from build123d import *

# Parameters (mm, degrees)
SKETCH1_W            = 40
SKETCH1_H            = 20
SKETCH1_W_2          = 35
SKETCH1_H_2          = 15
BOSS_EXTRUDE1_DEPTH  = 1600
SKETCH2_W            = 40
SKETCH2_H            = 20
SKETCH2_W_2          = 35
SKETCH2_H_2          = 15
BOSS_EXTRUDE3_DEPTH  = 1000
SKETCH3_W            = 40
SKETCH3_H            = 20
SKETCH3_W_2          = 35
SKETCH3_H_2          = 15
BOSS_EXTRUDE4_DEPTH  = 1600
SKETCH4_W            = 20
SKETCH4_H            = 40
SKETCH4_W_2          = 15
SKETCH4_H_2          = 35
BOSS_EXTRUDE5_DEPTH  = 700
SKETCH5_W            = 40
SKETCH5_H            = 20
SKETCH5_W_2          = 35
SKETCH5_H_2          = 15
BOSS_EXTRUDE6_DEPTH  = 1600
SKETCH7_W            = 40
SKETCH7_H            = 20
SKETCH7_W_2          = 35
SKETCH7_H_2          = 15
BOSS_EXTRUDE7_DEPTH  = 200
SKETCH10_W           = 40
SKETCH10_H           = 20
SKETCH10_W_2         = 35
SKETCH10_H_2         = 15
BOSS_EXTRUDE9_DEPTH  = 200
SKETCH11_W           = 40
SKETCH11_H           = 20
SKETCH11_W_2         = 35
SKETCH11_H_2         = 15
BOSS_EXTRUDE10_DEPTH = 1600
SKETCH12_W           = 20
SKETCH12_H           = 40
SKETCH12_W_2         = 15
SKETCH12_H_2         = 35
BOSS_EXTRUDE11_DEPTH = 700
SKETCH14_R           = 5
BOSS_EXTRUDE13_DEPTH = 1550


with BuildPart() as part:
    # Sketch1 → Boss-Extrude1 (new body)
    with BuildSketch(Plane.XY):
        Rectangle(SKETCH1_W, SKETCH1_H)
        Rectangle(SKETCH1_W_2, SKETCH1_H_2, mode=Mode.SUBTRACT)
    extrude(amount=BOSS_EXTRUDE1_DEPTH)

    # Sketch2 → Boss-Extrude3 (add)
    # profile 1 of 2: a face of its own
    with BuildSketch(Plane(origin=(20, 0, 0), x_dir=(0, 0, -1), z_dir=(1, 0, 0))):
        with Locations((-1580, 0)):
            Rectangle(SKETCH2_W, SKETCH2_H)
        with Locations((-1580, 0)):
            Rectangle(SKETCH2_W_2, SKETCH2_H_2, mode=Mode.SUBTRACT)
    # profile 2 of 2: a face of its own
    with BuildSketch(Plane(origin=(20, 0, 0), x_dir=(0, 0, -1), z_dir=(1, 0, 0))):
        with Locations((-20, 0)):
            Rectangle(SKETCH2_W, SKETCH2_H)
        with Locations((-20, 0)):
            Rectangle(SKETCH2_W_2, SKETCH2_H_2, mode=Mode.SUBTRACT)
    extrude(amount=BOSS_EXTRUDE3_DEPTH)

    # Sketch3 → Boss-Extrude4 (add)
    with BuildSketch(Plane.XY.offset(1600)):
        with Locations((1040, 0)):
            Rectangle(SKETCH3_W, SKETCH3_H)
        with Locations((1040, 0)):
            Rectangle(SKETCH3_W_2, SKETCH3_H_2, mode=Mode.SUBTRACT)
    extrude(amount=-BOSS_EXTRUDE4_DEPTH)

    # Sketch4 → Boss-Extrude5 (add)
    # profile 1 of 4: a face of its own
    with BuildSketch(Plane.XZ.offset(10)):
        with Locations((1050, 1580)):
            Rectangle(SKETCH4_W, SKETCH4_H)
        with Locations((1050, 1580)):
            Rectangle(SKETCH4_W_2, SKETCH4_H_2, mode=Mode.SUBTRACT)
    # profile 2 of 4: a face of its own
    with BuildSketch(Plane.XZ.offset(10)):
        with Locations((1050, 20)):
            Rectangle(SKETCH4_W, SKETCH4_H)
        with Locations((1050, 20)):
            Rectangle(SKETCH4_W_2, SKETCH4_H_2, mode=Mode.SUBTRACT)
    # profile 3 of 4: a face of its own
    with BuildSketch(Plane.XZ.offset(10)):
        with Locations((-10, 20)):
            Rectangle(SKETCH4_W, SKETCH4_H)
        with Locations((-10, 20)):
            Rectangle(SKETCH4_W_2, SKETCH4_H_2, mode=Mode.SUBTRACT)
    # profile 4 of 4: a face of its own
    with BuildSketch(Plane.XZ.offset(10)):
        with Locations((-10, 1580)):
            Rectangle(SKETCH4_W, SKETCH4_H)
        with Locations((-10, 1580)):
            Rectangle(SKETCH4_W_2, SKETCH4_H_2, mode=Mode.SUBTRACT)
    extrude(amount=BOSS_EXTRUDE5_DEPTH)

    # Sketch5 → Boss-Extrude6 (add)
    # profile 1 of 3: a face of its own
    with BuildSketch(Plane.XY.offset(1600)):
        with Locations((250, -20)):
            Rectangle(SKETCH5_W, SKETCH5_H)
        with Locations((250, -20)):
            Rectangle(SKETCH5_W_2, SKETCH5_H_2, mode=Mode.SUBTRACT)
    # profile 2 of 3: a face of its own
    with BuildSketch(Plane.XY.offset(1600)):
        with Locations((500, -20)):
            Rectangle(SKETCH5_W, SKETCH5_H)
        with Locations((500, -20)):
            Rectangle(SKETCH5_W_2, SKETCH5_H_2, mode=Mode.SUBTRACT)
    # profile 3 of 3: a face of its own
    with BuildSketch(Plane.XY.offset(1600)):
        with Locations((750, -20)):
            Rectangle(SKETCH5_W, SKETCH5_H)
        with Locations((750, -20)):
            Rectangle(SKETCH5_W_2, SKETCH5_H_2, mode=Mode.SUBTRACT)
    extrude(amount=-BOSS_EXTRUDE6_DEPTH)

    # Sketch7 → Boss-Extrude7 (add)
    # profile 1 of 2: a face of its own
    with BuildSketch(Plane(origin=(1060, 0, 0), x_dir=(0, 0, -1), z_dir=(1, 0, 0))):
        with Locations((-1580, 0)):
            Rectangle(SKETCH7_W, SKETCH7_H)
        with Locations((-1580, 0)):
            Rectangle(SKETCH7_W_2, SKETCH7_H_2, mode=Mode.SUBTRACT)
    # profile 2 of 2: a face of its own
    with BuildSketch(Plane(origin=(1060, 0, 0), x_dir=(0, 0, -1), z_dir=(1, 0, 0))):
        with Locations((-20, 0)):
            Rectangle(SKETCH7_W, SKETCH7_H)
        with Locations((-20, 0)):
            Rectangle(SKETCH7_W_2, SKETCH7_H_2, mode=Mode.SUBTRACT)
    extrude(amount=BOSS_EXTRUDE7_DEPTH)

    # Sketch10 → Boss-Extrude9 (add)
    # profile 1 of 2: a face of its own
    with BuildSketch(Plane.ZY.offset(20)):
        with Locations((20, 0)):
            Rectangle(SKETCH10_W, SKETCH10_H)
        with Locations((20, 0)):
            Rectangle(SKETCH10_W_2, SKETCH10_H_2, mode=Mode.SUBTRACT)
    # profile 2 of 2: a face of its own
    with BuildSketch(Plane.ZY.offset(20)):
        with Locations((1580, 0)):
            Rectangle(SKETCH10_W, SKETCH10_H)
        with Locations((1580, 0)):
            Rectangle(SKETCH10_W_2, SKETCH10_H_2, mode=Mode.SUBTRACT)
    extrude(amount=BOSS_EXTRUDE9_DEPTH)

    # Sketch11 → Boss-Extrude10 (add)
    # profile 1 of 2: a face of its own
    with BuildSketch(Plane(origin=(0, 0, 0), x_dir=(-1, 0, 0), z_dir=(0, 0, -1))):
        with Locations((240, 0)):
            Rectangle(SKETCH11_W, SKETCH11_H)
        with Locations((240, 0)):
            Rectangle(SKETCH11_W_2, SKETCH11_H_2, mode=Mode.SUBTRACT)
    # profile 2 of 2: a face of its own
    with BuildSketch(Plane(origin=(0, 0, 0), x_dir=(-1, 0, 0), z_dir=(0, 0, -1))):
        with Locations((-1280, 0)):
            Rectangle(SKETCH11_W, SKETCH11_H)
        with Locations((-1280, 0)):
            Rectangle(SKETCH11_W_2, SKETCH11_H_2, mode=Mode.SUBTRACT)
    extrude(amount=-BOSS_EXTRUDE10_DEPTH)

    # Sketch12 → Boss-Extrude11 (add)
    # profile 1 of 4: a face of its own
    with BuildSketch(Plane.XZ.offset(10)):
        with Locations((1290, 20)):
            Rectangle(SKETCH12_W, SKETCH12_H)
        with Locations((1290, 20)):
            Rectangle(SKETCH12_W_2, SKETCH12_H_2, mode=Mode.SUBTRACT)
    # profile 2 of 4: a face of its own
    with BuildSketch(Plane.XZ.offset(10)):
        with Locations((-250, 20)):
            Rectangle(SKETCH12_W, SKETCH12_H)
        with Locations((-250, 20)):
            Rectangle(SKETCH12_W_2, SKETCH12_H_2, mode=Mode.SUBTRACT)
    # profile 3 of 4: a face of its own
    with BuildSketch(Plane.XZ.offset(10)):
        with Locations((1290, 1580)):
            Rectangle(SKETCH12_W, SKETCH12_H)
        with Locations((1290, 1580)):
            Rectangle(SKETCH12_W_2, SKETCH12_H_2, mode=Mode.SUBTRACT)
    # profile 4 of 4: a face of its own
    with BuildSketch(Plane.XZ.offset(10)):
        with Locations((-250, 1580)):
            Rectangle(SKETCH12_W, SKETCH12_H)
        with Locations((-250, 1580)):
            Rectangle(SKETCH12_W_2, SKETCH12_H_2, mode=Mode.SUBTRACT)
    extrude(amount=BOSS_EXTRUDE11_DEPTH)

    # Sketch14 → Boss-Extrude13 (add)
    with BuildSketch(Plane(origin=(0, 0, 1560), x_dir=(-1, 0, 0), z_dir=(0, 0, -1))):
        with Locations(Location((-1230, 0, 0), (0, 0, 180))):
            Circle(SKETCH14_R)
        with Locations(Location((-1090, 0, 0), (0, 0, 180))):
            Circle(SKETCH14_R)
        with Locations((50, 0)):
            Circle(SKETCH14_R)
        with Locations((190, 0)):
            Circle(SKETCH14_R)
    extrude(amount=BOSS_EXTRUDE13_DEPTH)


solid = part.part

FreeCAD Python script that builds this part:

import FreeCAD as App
import Part
import Sketcher
Q = App.Units.Quantity

doc = App.newDocument("Part")
body = doc.addObject("PartDesign::Body", "Body")

# Sketch on XY plane
sketch1 = doc.addObject("Sketcher::SketchObject", "Sketch")
body.addObject(sketch1)
sketch1.AttachmentSupport = (doc.XY_Plane, [""])
sketch1.MapMode = "FlatFace"
sketch1.addGeometry([
    Part.LineSegment(App.Vector(-20, 10, 0), App.Vector(-20, -10, 0)),  # 0
    Part.LineSegment(App.Vector(-20, -10, 0), App.Vector(20, -10, 0)),  # 1
    Part.LineSegment(App.Vector(20, -10, 0), App.Vector(20, 10, 0)),  # 2
    Part.LineSegment(App.Vector(20, 10, 0), App.Vector(-20, 10, 0)),  # 3
    Part.LineSegment(App.Vector(17.5, -7.5, 0), App.Vector(-17.5, -7.5, 0)),  # 4
    Part.LineSegment(App.Vector(-17.5, -7.5, 0), App.Vector(-17.5, 7.5, 0)),  # 5
    Part.LineSegment(App.Vector(-17.5, 7.5, 0), App.Vector(17.5, 7.5, 0)),  # 6
    Part.LineSegment(App.Vector(17.5, 7.5, 0), App.Vector(17.5, -7.5, 0)),  # 7
], False)
sketch1.addConstraint([
    Sketcher.Constraint("Coincident", 0, 2, 1, 1),
    Sketcher.Constraint("Coincident", 1, 2, 2, 1),
    Sketcher.Constraint("Coincident", 2, 2, 3, 1),
    Sketcher.Constraint("Coincident", 3, 2, 0, 1),
    Sketcher.Constraint("Coincident", 4, 2, 5, 1),
    Sketcher.Constraint("Coincident", 5, 2, 6, 1),
    Sketcher.Constraint("Coincident", 6, 2, 7, 1),
    Sketcher.Constraint("Coincident", 7, 2, 4, 1),
    Sketcher.Constraint("Vertical", 0),
    Sketcher.Constraint("Horizontal", 1),
    Sketcher.Constraint("Vertical", 2),
    Sketcher.Constraint("Horizontal", 3),
    Sketcher.Constraint("Horizontal", 4),
    Sketcher.Constraint("Vertical", 5),
    Sketcher.Constraint("Horizontal", 6),
    Sketcher.Constraint("Vertical", 7),
    Sketcher.Constraint("Symmetric", 0, 2, 2, 2, -1, 1),
    Sketcher.Constraint("Symmetric", 4, 2, 6, 2, -1, 1),
    Sketcher.Constraint("DistanceX", 1, 1, 1, 2, Q("40 mm")),
    Sketcher.Constraint("DistanceX", 4, 2, 4, 1, Q("35 mm")),
    Sketcher.Constraint("DistanceY", 0, 2, 0, 1, Q("20 mm")),
    Sketcher.Constraint("DistanceY", 5, 1, 5, 2, Q("15 mm")),
])
pad1 = doc.addObject("PartDesign::Pad", "Pad")
body.addObject(pad1)
pad1.Profile = sketch1
pad1.Length = 1600

# Sketch on YZ plane
sketch2 = doc.addObject("Sketcher::SketchObject", "Sketch001")
body.addObject(sketch2)
sketch2.AttachmentSupport = (doc.YZ_Plane, [""])
sketch2.MapMode = "FlatFace"
sketch2.AttachmentOffset = App.Placement(App.Vector(0, 0, 20), App.Rotation())
sketch2.addGeometry([
    Part.LineSegment(App.Vector(10, 1600, 0), App.Vector(-10, 1600, 0)),  # 0
    Part.LineSegment(App.Vector(-10, 1600, 0), App.Vector(-10, 1560, 0)),  # 1
    Part.LineSegment(App.Vector(-10, 1560, 0), App.Vector(10, 1560, 0)),  # 2
    Part.LineSegment(App.Vector(10, 1560, 0), App.Vector(10, 1600, 0)),  # 3
    Part.LineSegment(App.Vector(-7.5, 1562.5, 0), App.Vector(-7.5, 1597.5, 0)),  # 4
    Part.LineSegment(App.Vector(-7.5, 1597.5, 0), App.Vector(7.5, 1597.5, 0)),  # 5
    Part.LineSegment(App.Vector(7.5, 1597.5, 0), App.Vector(7.5, 1562.5, 0)),  # 6
    Part.LineSegment(App.Vector(7.5, 1562.5, 0), App.Vector(-7.5, 1562.5, 0)),  # 7
    Part.LineSegment(App.Vector(10, 40, 0), App.Vector(-10, 40, 0)),  # 8
    Part.LineSegment(App.Vector(-10, 40, 0), App.Vector(-10, 0, 0)),  # 9
    Part.LineSegment(App.Vector(-10, 0, 0), App.Vector(10, 0, 0)),  # 10
    Part.LineSegment(App.Vector(10, 0, 0), App.Vector(10, 40, 0)),  # 11
    Part.LineSegment(App.Vector(-7.5, 2.5, 0), App.Vector(-7.5, 37.5, 0)),  # 12
    Part.LineSegment(App.Vector(-7.5, 37.5, 0), App.Vector(7.5, 37.5, 0)),  # 13
    Part.LineSegment(App.Vector(7.5, 37.5, 0), App.Vector(7.5, 2.5, 0)),  # 14
    Part.LineSegment(App.Vector(7.5, 2.5, 0), App.Vector(-7.5, 2.5, 0)),  # 15
], False)
sketch2.addConstraint([
    Sketcher.Constraint("Coincident", 0, 2, 1, 1),
    Sketcher.Constraint("Coincident", 1, 2, 2, 1),
    Sketcher.Constraint("Coincident", 2, 2, 3, 1),
    Sketcher.Constraint("Coincident", 3, 2, 0, 1),
    Sketcher.Constraint("Coincident", 4, 2, 5, 1),
    Sketcher.Constraint("Coincident", 5, 2, 6, 1),
    Sketcher.Constraint("Coincident", 6, 2, 7, 1),
    Sketcher.Constraint("Coincident", 7, 2, 4, 1),
    Sketcher.Constraint("Coincident", 8, 2, 9, 1),
    Sketcher.Constraint("Coincident", 9, 2, 10, 1),
    Sketcher.Constraint("Coincident", 10, 2, 11, 1),
    Sketcher.Constraint("Coincident", 11, 2, 8, 1),
    Sketcher.Constraint("Coincident", 12, 2, 13, 1),
    Sketcher.Constraint("Coincident", 13, 2, 14, 1),
    Sketcher.Constraint("Coincident", 14, 2, 15, 1),
    Sketcher.Constraint("Coincident", 15, 2, 12, 1),
    Sketcher.Constraint("Horizontal", 0),
    Sketcher.Constraint("Vertical", 1),
    Sketcher.Constraint("Horizontal", 2),
    Sketcher.Constraint("Vertical", 3),
    Sketcher.Constraint("Vertical", 4),
    Sketcher.Constraint("Horizontal", 5),
    Sketcher.Constraint("Vertical", 6),
    Sketcher.Constraint("Horizontal", 7),
    Sketcher.Constraint("Horizontal", 8),
    Sketcher.Constraint("Vertical", 9),
    Sketcher.Constraint("Horizontal", 10),
    Sketcher.Constraint("Vertical", 11),
    Sketcher.Constraint("Vertical", 12),
    Sketcher.Constraint("Horizontal", 13),
    Sketcher.Constraint("Vertical", 14),
    Sketcher.Constraint("Horizontal", 15),
    Sketcher.Constraint("Symmetric", 9, 2, 10, 2, -1, 1),
    Sketcher.Constraint("Vertical", 1, 2, 8, 2),
    Sketcher.Constraint("Vertical", 3, 2, 10, 2),
    Sketcher.Constraint("Vertical", 7, 2, 12, 2),
    Sketcher.Constraint("Vertical", 6, 2, 13, 2),
    Sketcher.Constraint("Equal", 3, 9),
    Sketcher.Constraint("Equal", 6, 12),
    Sketcher.Constraint("DistanceX", 0, 2, 0, 1, Q("20 mm")),
    Sketcher.Constraint("DistanceX", 5, 1, 5, 2, Q("15 mm")),
    Sketcher.Constraint("DistanceY", 1, 2, 1, 1, Q("40 mm")),
    Sketcher.Constraint("DistanceY", 4, 1, 4, 2, Q("35 mm")),
    Sketcher.Constraint("DistanceY", -1, 1, 0, 2, Q("1600 mm")),
    Sketcher.Constraint("DistanceX", 4, 2, -1, 1, Q("7.5 mm")),
    Sketcher.Constraint("DistanceY", -1, 1, 4, 2, Q("1597.5 mm")),
    Sketcher.Constraint("DistanceY", -1, 1, 12, 2, Q("37.5 mm")),
])
pad2 = doc.addObject("PartDesign::Pad", "Pad001")
body.addObject(pad2)
pad2.Profile = sketch2
pad2.Length = 1000

# Sketch on XY plane
sketch3 = doc.addObject("Sketcher::SketchObject", "Sketch002")
body.addObject(sketch3)
sketch3.AttachmentSupport = (doc.XY_Plane, [""])
sketch3.MapMode = "FlatFace"
sketch3.AttachmentOffset = App.Placement(App.Vector(0, 0, 1600), App.Rotation())
sketch3.addGeometry([
    Part.LineSegment(App.Vector(1020, 10, 0), App.Vector(1020, -10, 0)),  # 0
    Part.LineSegment(App.Vector(1020, -10, 0), App.Vector(1060, -10, 0)),  # 1
    Part.LineSegment(App.Vector(1060, -10, 0), App.Vector(1060, 10, 0)),  # 2
    Part.LineSegment(App.Vector(1060, 10, 0), App.Vector(1020, 10, 0)),  # 3
    Part.LineSegment(App.Vector(1057.5, -7.5, 0), App.Vector(1022.5, -7.5, 0)),  # 4
    Part.LineSegment(App.Vector(1022.5, -7.5, 0), App.Vector(1022.5, 7.5, 0)),  # 5
    Part.LineSegment(App.Vector(1022.5, 7.5, 0), App.Vector(1057.5, 7.5, 0)),  # 6
    Part.LineSegment(App.Vector(1057.5, 7.5, 0), App.Vector(1057.5, -7.5, 0)),  # 7
], False)
sketch3.addConstraint([
    Sketcher.Constraint("Coincident", 0, 2, 1, 1),
    Sketcher.Constraint("Coincident", 1, 2, 2, 1),
    Sketcher.Constraint("Coincident", 2, 2, 3, 1),
    Sketcher.Constraint("Coincident", 3, 2, 0, 1),
    Sketcher.Constraint("Coincident", 4, 2, 5, 1),
    Sketcher.Constraint("Coincident", 5, 2, 6, 1),
    Sketcher.Constraint("Coincident", 6, 2, 7, 1),
    Sketcher.Constraint("Coincident", 7, 2, 4, 1),
    Sketcher.Constraint("Vertical", 0),
    Sketcher.Constraint("Horizontal", 1),
    Sketcher.Constraint("Vertical", 2),
    Sketcher.Constraint("Horizontal", 3),
    Sketcher.Constraint("Horizontal", 4),
    Sketcher.Constraint("Vertical", 5),
    Sketcher.Constraint("Horizontal", 6),
    Sketcher.Constraint("Vertical", 7),
    Sketcher.Constraint("DistanceX", 1, 1, 1, 2, Q("40 mm")),
    Sketcher.Constraint("DistanceX", 4, 2, 4, 1, Q("35 mm")),
    Sketcher.Constraint("DistanceY", 0, 2, 0, 1, Q("20 mm")),
    Sketcher.Constraint("DistanceY", 5, 1, 5, 2, Q("15 mm")),
    Sketcher.Constraint("DistanceX", -1, 1, 0, 2, Q("1020 mm")),
    Sketcher.Constraint("DistanceY", 0, 2, -1, 1, Q("10 mm")),
    Sketcher.Constraint("DistanceX", -1, 1, 4, 2, Q("1022.5 mm")),
    Sketcher.Constraint("DistanceY", 4, 2, -1, 1, Q("7.5 mm")),
])
pad3 = doc.addObject("PartDesign::Pad", "Pad002")
body.addObject(pad3)
pad3.Profile = sketch3
pad3.Length = 1600
pad3.Reversed = True

# Sketch on XZ plane
sketch4 = doc.addObject("Sketcher::SketchObject", "Sketch003")
body.addObject(sketch4)
sketch4.AttachmentSupport = (doc.XZ_Plane, [""])
sketch4.MapMode = "FlatFace"
sketch4.AttachmentOffset = App.Placement(App.Vector(0, 0, 10), App.Rotation())
sketch4.addGeometry([
    Part.LineSegment(App.Vector(1040, 1600, 0), App.Vector(1040, 1560, 0)),  # 0
    Part.LineSegment(App.Vector(1040, 1560, 0), App.Vector(1060, 1560, 0)),  # 1
    Part.LineSegment(App.Vector(1060, 1560, 0), App.Vector(1060, 1600, 0)),  # 2
    Part.LineSegment(App.Vector(1060, 1600, 0), App.Vector(1040, 1600, 0)),  # 3
    Part.LineSegment(App.Vector(1057.5, 1562.5, 0), App.Vector(1042.5, 1562.5, 0)),  # 4
    Part.LineSegment(App.Vector(1042.5, 1562.5, 0), App.Vector(1042.5, 1597.5, 0)),  # 5
    Part.LineSegment(App.Vector(1042.5, 1597.5, 0), App.Vector(1057.5, 1597.5, 0)),  # 6
    Part.LineSegment(App.Vector(1057.5, 1597.5, 0), App.Vector(1057.5, 1562.5, 0)),  # 7
    Part.LineSegment(App.Vector(1040, 40, 0), App.Vector(1040, 0, 0)),  # 8
    Part.LineSegment(App.Vector(1040, 0, 0), App.Vector(1060, 0, 0)),  # 9
    Part.LineSegment(App.Vector(1060, 0, 0), App.Vector(1060, 40, 0)),  # 10
    Part.LineSegment(App.Vector(1060, 40, 0), App.Vector(1040, 40, 0)),  # 11
    Part.LineSegment(App.Vector(1057.5, 2.5, 0), App.Vector(1042.5, 2.5, 0)),  # 12
    Part.LineSegment(App.Vector(1042.5, 2.5, 0), App.Vector(1042.5, 37.5, 0)),  # 13
    Part.LineSegment(App.Vector(1042.5, 37.5, 0), App.Vector(1057.5, 37.5, 0)),  # 14
    Part.LineSegment(App.Vector(1057.5, 37.5, 0), App.Vector(1057.5, 2.5, 0)),  # 15
    Part.LineSegment(App.Vector(-20, 40, 0), App.Vector(-20, 0, 0)),  # 16
    Part.LineSegment(App.Vector(-20, 0, 0), App.Vector(0, 0, 0)),  # 17
    Part.LineSegment(App.Vector(0, 0, 0), App.Vector(0, 40, 0)),  # 18
    Part.LineSegment(App.Vector(0, 40, 0), App.Vector(-20, 40, 0)),  # 19
    Part.LineSegment(App.Vector(-2.5, 2.5, 0), App.Vector(-17.5, 2.5, 0)),  # 20
    Part.LineSegment(App.Vector(-17.5, 2.5, 0), App.Vector(-17.5, 37.5, 0)),  # 21
    Part.LineSegment(App.Vector(-17.5, 37.5, 0), App.Vector(-2.5, 37.5, 0)),  # 22
    Part.LineSegment(App.Vector(-2.5, 37.5, 0), App.Vector(-2.5, 2.5, 0)),  # 23
    Part.LineSegment(App.Vector(-20, 1600, 0), App.Vector(-20, 1560, 0)),  # 24
    Part.LineSegment(App.Vector(-20, 1560, 0), App.Vector(0, 1560, 0)),  # 25
    Part.LineSegment(App.Vector(0, 1560, 0), App.Vector(0, 1600, 0)),  # 26
    Part.LineSegment(App.Vector(0, 1600, 0), App.Vector(-20, 1600, 0)),  # 27
    Part.LineSegment(App.Vector(-2.5, 1562.5, 0), App.Vector(-17.5, 1562.5, 0)),  # 28
    Part.LineSegment(App.Vector(-17.5, 1562.5, 0), App.Vector(-17.5, 1597.5, 0)),  # 29
    Part.LineSegment(App.Vector(-17.5, 1597.5, 0), App.Vector(-2.5, 1597.5, 0)),  # 30
    Part.LineSegment(App.Vector(-2.5, 1597.5, 0), App.Vector(-2.5, 1562.5, 0)),  # 31
], False)
sketch4.addConstraint([
    Sketcher.Constraint("Coincident", 0, 2, 1, 1),
    Sketcher.Constraint("Coincident", 1, 2, 2, 1),
    Sketcher.Constraint("Coincident", 2, 2, 3, 1),
    Sketcher.Constraint("Coincident", 3, 2, 0, 1),
    Sketcher.Constraint("Coincident", 4, 2, 5, 1),
    Sketcher.Constraint("Coincident", 5, 2, 6, 1),
    Sketcher.Constraint("Coincident", 6, 2, 7, 1),
    Sketcher.Constraint("Coincident", 7, 2, 4, 1),
    Sketcher.Constraint("Coincident", 8, 2, 9, 1),
    Sketcher.Constraint("Coincident", 9, 2, 10, 1),
    Sketcher.Constraint("Coincident", 10, 2, 11, 1),
    Sketcher.Constraint("Coincident", 11, 2, 8, 1),
    Sketcher.Constraint("Coincident", 12, 2, 13, 1),
    Sketcher.Constraint("Coincident", 13, 2, 14, 1),
    Sketcher.Constraint("Coincident", 14, 2, 15, 1),
    Sketcher.Constraint("Coincident", 15, 2, 12, 1),
    Sketcher.Constraint("Coincident", 16, 2, 17, 1),
    Sketcher.Constraint("Coincident", 17, 2, 18, 1),
    Sketcher.Constraint("Coincident", 18, 2, 19, 1),
    Sketcher.Constraint("Coincident", 19, 2, 16, 1),
    Sketcher.Constraint("Coincident", 20, 2, 21, 1),
    Sketcher.Constraint("Coincident", 21, 2, 22, 1),
    Sketcher.Constraint("Coincident", 22, 2, 23, 1),
    Sketcher.Constraint("Coincident", 23, 2, 20, 1),
    Sketcher.Constraint("Coincident", 24, 2, 25, 1),
    Sketcher.Constraint("Coincident", 25, 2, 26, 1),
    Sketcher.Constraint("Coincident", 26, 2, 27, 1),
    Sketcher.Constraint("Coincident", 27, 2, 24, 1),
    Sketcher.Constraint("Coincident", 28, 2, 29, 1),
    Sketcher.Constraint("Coincident", 29, 2, 30, 1),
    Sketcher.Constraint("Coincident", 30, 2, 31, 1),
    Sketcher.Constraint("Coincident", 31, 2, 28, 1),
    Sketcher.Constraint("Vertical", 0),
    Sketcher.Constraint("Horizontal", 1),
    Sketcher.Constraint("Vertical", 2),
    Sketcher.Constraint("Horizontal", 3),
    Sketcher.Constraint("Horizontal", 4),
    Sketcher.Constraint("Vertical", 5),
    Sketcher.Constraint("Horizontal", 6),
    Sketcher.Constraint("Vertical", 7),
    Sketcher.Constraint("Vertical", 8),
    Sketcher.Constraint("Horizontal", 9),
    Sketcher.Constraint("Vertical", 10),
    Sketcher.Constraint("Horizontal", 11),
    Sketcher.Constraint("Horizontal", 12),
    Sketcher.Constraint("Vertical", 13),
    Sketcher.Constraint("Horizontal", 14),
    Sketcher.Constraint("Vertical", 15),
    Sketcher.Constraint("Vertical", 16),
    Sketcher.Constraint("Horizontal", 17),
    Sketcher.Constraint("Vertical", 18),
    Sketcher.Constraint("Horizontal", 19),
    Sketcher.Constraint("Horizontal", 20),
    Sketcher.Constraint("Vertical", 21),
    Sketcher.Constraint("Horizontal", 22),
    Sketcher.Constraint("Vertical", 23),
    Sketcher.Constraint("Vertical", 24),
    Sketcher.Constraint("Horizontal", 25),
    Sketcher.Constraint("Vertical", 26),
    Sketcher.Constraint("Horizontal", 27),
    Sketcher.Constraint("Horizontal", 28),
    Sketcher.Constraint("Vertical", 29),
    Sketcher.Constraint("Horizontal", 30),
    Sketcher.Constraint("Vertical", 31),
    Sketcher.Constraint("Coincident", 17, 2, -1, 1),
    Sketcher.Constraint("PointOnObject", 8, 2, -1),
    Sketcher.Constraint("PointOnObject", 25, 2, -2),
    Sketcher.Constraint("Horizontal", 11, 2, 18, 2),
    Sketcher.Constraint("Horizontal", 15, 2, 20, 2),
    Sketcher.Constraint("Horizontal", 14, 2, 21, 2),
    Sketcher.Constraint("Horizontal", 1, 2, 24, 2),
    Sketcher.Constraint("Horizontal", 3, 2, 26, 2),
    Sketcher.Constraint("Horizontal", 7, 2, 28, 2),
    Sketcher.Constraint("Horizontal", 6, 2, 29, 2),
    Sketcher.Constraint("Vertical", 3, 2, 8, 2),
    Sketcher.Constraint("Vertical", 2, 2, 9, 2),
    Sketcher.Constraint("Vertical", 5, 2, 12, 2),
    Sketcher.Constraint("Vertical", 7, 2, 14, 2),
    Sketcher.Constraint("Vertical", 19, 2, 24, 2),
    Sketcher.Constraint("Vertical", 21, 2, 28, 2),
    Sketcher.Constraint("Vertical", 23, 2, 30, 2),
    Sketcher.Constraint("Equal", 11, 17),
    Sketcher.Constraint("Equal", 14, 20),
    Sketcher.Constraint("Equal", 2, 8),
    Sketcher.Constraint("Equal", 7, 13),
    Sketcher.Constraint("DistanceX", 1, 1, 1, 2, Q("20 mm")),
    Sketcher.Constraint("DistanceX", 4, 2, 4, 1, Q("15 mm")),
    Sketcher.Constraint("DistanceY", 0, 2, 0, 1, Q("40 mm")),
    Sketcher.Constraint("DistanceY", 5, 1, 5, 2, Q("35 mm")),
    Sketcher.Constraint("DistanceX", -1, 1, 0, 2, Q("1040 mm")),
    Sketcher.Constraint("DistanceY", -1, 1, 0, 2, Q("1560 mm")),
    Sketcher.Constraint("DistanceX", -1, 1, 4, 2, Q("1042.5 mm")),
    Sketcher.Constraint("DistanceY", -1, 1, 4, 2, Q("1562.5 mm")),
    Sketcher.Constraint("DistanceY", -1, 1, 12, 2, Q("2.5 mm")),
    Sketcher.Constraint("DistanceX", 20, 2, -1, 1, Q("17.5 mm")),
])
pad4 = doc.addObject("PartDesign::Pad", "Pad003")
body.addObject(pad4)
pad4.Profile = sketch4
pad4.Length = 700

# Sketch on XY plane
sketch5 = doc.addObject("Sketcher::SketchObject", "Sketch004")
body.addObject(sketch5)
sketch5.AttachmentSupport = (doc.XY_Plane, [""])
sketch5.MapMode = "FlatFace"
sketch5.AttachmentOffset = App.Placement(App.Vector(0, 0, 1600), App.Rotation())
sketch5.addGeometry([
    Part.LineSegment(App.Vector(230, -10, 0), App.Vector(230, -30, 0)),  # 0
    Part.LineSegment(App.Vector(230, -30, 0), App.Vector(270, -30, 0)),  # 1
    Part.LineSegment(App.Vector(270, -30, 0), App.Vector(270, -10, 0)),  # 2
    Part.LineSegment(App.Vector(270, -10, 0), App.Vector(230, -10, 0)),  # 3
    Part.LineSegment(App.Vector(267.5, -27.5, 0), App.Vector(232.5, -27.5, 0)),  # 4
    Part.LineSegment(App.Vector(232.5, -27.5, 0), App.Vector(232.5, -12.5, 0)),  # 5
    Part.LineSegment(App.Vector(232.5, -12.5, 0), App.Vector(267.5, -12.5, 0)),  # 6
    Part.LineSegment(App.Vector(267.5, -12.5, 0), App.Vector(267.5, -27.5, 0)),  # 7
    Part.LineSegment(App.Vector(480, -10, 0), App.Vector(480, -30, 0)),  # 8
    Part.LineSegment(App.Vector(480, -30, 0), App.Vector(520, -30, 0)),  # 9
    Part.LineSegment(App.Vector(520, -30, 0), App.Vector(520, -10, 0)),  # 10
    Part.LineSegment(App.Vector(520, -10, 0), App.Vector(480, -10, 0)),  # 11
    Part.LineSegment(App.Vector(517.5, -27.5, 0), App.Vector(482.5, -27.5, 0)),  # 12
    Part.LineSegment(App.Vector(482.5, -27.5, 0), App.Vector(482.5, -12.5, 0)),  # 13
    Part.LineSegment(App.Vector(482.5, -12.5, 0), App.Vector(517.5, -12.5, 0)),  # 14
    Part.LineSegment(App.Vector(517.5, -12.5, 0), App.Vector(517.5, -27.5, 0)),  # 15
    Part.LineSegment(App.Vector(730, -10, 0), App.Vector(730, -30, 0)),  # 16
    Part.LineSegment(App.Vector(730, -30, 0), App.Vector(770, -30, 0)),  # 17
    Part.LineSegment(App.Vector(770, -30, 0), App.Vector(770, -10, 0)),  # 18
    Part.LineSegment(App.Vector(770, -10, 0), App.Vector(730, -10, 0)),  # 19
    Part.LineSegment(App.Vector(767.5, -27.5, 0), App.Vector(732.5, -27.5, 0)),  # 20
    Part.LineSegment(App.Vector(732.5, -27.5, 0), App.Vector(732.5, -12.5, 0)),  # 21
    Part.LineSegment(App.Vector(732.5, -12.5, 0), App.Vector(767.5, -12.5, 0)),  # 22
    Part.LineSegment(App.Vector(767.5, -12.5, 0), App.Vector(767.5, -27.5, 0)),  # 23
], False)
sketch5.addConstraint([
    Sketcher.Constraint("Coincident", 0, 2, 1, 1),
    Sketcher.Constraint("Coincident", 1, 2, 2, 1),
    Sketcher.Constraint("Coincident", 2, 2, 3, 1),
    Sketcher.Constraint("Coincident", 3, 2, 0, 1),
    Sketcher.Constraint("Coincident", 4, 2, 5, 1),
    Sketcher.Constraint("Coincident", 5, 2, 6, 1),
    Sketcher.Constraint("Coincident", 6, 2, 7, 1),
    Sketcher.Constraint("Coincident", 7, 2, 4, 1),
    Sketcher.Constraint("Coincident", 8, 2, 9, 1),
    Sketcher.Constraint("Coincident", 9, 2, 10, 1),
    Sketcher.Constraint("Coincident", 10, 2, 11, 1),
    Sketcher.Constraint("Coincident", 11, 2, 8, 1),
    Sketcher.Constraint("Coincident", 12, 2, 13, 1),
    Sketcher.Constraint("Coincident", 13, 2, 14, 1),
    Sketcher.Constraint("Coincident", 14, 2, 15, 1),
    Sketcher.Constraint("Coincident", 15, 2, 12, 1),
    Sketcher.Constraint("Coincident", 16, 2, 17, 1),
    Sketcher.Constraint("Coincident", 17, 2, 18, 1),
    Sketcher.Constraint("Coincident", 18, 2, 19, 1),
    Sketcher.Constraint("Coincident", 19, 2, 16, 1),
    Sketcher.Constraint("Coincident", 20, 2, 21, 1),
    Sketcher.Constraint("Coincident", 21, 2, 22, 1),
    Sketcher.Constraint("Coincident", 22, 2, 23, 1),
    Sketcher.Constraint("Coincident", 23, 2, 20, 1),
    Sketcher.Constraint("Vertical", 0),
    Sketcher.Constraint("Horizontal", 1),
    Sketcher.Constraint("Vertical", 2),
    Sketcher.Constraint("Horizontal", 3),
    Sketcher.Constraint("Horizontal", 4),
    Sketcher.Constraint("Vertical", 5),
    Sketcher.Constraint("Horizontal", 6),
    Sketcher.Constraint("Vertical", 7),
    Sketcher.Constraint("Vertical", 8),
    Sketcher.Constraint("Horizontal", 9),
    Sketcher.Constraint("Vertical", 10),
    Sketcher.Constraint("Horizontal", 11),
    Sketcher.Constraint("Horizontal", 12),
    Sketcher.Constraint("Vertical", 13),
    Sketcher.Constraint("Horizontal", 14),
    Sketcher.Constraint("Vertical", 15),
    Sketcher.Constraint("Vertical", 16),
    Sketcher.Constraint("Horizontal", 17),
    Sketcher.Constraint("Vertical", 18),
    Sketcher.Constraint("Horizontal", 19),
    Sketcher.Constraint("Horizontal", 20),
    Sketcher.Constraint("Vertical", 21),
    Sketcher.Constraint("Horizontal", 22),
    Sketcher.Constraint("Vertical", 23),
    Sketcher.Constraint("Horizontal", 1, 2, 8, 2),
    Sketcher.Constraint("Horizontal", 3, 2, 10, 2),
    Sketcher.Constraint("Horizontal", 7, 2, 12, 2),
    Sketcher.Constraint("Horizontal", 6, 2, 13, 2),
    Sketcher.Constraint("Horizontal", 9, 2, 16, 2),
    Sketcher.Constraint("Horizontal", 11, 2, 18, 2),
    Sketcher.Constraint("Horizontal", 15, 2, 20, 2),
    Sketcher.Constraint("Horizontal", 14, 2, 21, 2),
    Sketcher.Constraint("Equal", 3, 9),
    Sketcher.Constraint("Equal", 6, 12),
    Sketcher.Constraint("Equal", 11, 17),
    Sketcher.Constraint("Equal", 14, 20),
    Sketcher.Constraint("DistanceX", 1, 1, 1, 2, Q("40 mm")),
    Sketcher.Constraint("DistanceX", 4, 2, 4, 1, Q("35 mm")),
    Sketcher.Constraint("DistanceY", 0, 2, 0, 1, Q("20 mm")),
    Sketcher.Constraint("DistanceY", 5, 1, 5, 2, Q("15 mm")),
    Sketcher.Constraint("DistanceX", -1, 1, 0, 2, Q("230 mm")),
    Sketcher.Constraint("DistanceY", 0, 2, -1, 1, Q("30 mm")),
    Sketcher.Constraint("DistanceX", -1, 1, 8, 2, Q("480 mm")),
    Sketcher.Constraint("DistanceX", -1, 1, 16, 2, Q("730 mm")),
    Sketcher.Constraint("DistanceX", -1, 1, 4, 2, Q("232.5 mm")),
    Sketcher.Constraint("DistanceY", 4, 2, -1, 1, Q("27.5 mm")),
    Sketcher.Constraint("DistanceX", -1, 1, 12, 2, Q("482.5 mm")),
    Sketcher.Constraint("DistanceX", -1, 1, 20, 2, Q("732.5 mm")),
])
pad5 = doc.addObject("PartDesign::Pad", "Pad004")
body.addObject(pad5)
pad5.Profile = sketch5
pad5.Length = 1600
pad5.Reversed = True

# Sketch on YZ plane
sketch6 = doc.addObject("Sketcher::SketchObject", "Sketch005")
body.addObject(sketch6)
sketch6.AttachmentSupport = (doc.YZ_Plane, [""])
sketch6.MapMode = "FlatFace"
sketch6.AttachmentOffset = App.Placement(App.Vector(0, 0, 1060), App.Rotation())
sketch6.addGeometry([
    Part.LineSegment(App.Vector(10, 1600, 0), App.Vector(-10, 1600, 0)),  # 0
    Part.LineSegment(App.Vector(-10, 1600, 0), App.Vector(-10, 1560, 0)),  # 1
    Part.LineSegment(App.Vector(-10, 1560, 0), App.Vector(10, 1560, 0)),  # 2
    Part.LineSegment(App.Vector(10, 1560, 0), App.Vector(10, 1600, 0)),  # 3
    Part.LineSegment(App.Vector(-7.5, 1562.5, 0), App.Vector(-7.5, 1597.5, 0)),  # 4
    Part.LineSegment(App.Vector(-7.5, 1597.5, 0), App.Vector(7.5, 1597.5, 0)),  # 5
    Part.LineSegment(App.Vector(7.5, 1597.5, 0), App.Vector(7.5, 1562.5, 0)),  # 6
    Part.LineSegment(App.Vector(7.5, 1562.5, 0), App.Vector(-7.5, 1562.5, 0)),  # 7
    Part.LineSegment(App.Vector(10, 40, 0), App.Vector(-10, 40, 0)),  # 8
    Part.LineSegment(App.Vector(-10, 40, 0), App.Vector(-10, 0, 0)),  # 9
    Part.LineSegment(App.Vector(-10, 0, 0), App.Vector(10, 0, 0)),  # 10
    Part.LineSegment(App.Vector(10, 0, 0), App.Vector(10, 40, 0)),  # 11
    Part.LineSegment(App.Vector(-7.5, 2.5, 0), App.Vector(-7.5, 37.5, 0)),  # 12
    Part.LineSegment(App.Vector(-7.5, 37.5, 0), App.Vector(7.5, 37.5, 0)),  # 13
    Part.LineSegment(App.Vector(7.5, 37.5, 0), App.Vector(7.5, 2.5, 0)),  # 14
    Part.LineSegment(App.Vector(7.5, 2.5, 0), App.Vector(-7.5, 2.5, 0)),  # 15
], False)
sketch6.addConstraint([
    Sketcher.Constraint("Coincident", 0, 2, 1, 1),
    Sketcher.Constraint("Coincident", 1, 2, 2, 1),
    Sketcher.Constraint("Coincident", 2, 2, 3, 1),
    Sketcher.Constraint("Coincident", 3, 2, 0, 1),
    Sketcher.Constraint("Coincident", 4, 2, 5, 1),
    Sketcher.Constraint("Coincident", 5, 2, 6, 1),
    Sketcher.Constraint("Coincident", 6, 2, 7, 1),
    Sketcher.Constraint("Coincident", 7, 2, 4, 1),
    Sketcher.Constraint("Coincident", 8, 2, 9, 1),
    Sketcher.Constraint("Coincident", 9, 2, 10, 1),
    Sketcher.Constraint("Coincident", 10, 2, 11, 1),
    Sketcher.Constraint("Coincident", 11, 2, 8, 1),
    Sketcher.Constraint("Coincident", 12, 2, 13, 1),
    Sketcher.Constraint("Coincident", 13, 2, 14, 1),
    Sketcher.Constraint("Coincident", 14, 2, 15, 1),
    Sketcher.Constraint("Coincident", 15, 2, 12, 1),
    Sketcher.Constraint("Horizontal", 0),
    Sketcher.Constraint("Vertical", 1),
    Sketcher.Constraint("Horizontal", 2),
    Sketcher.Constraint("Vertical", 3),
    Sketcher.Constraint("Vertical", 4),
    Sketcher.Constraint("Horizontal", 5),
    Sketcher.Constraint("Vertical", 6),
    Sketcher.Constraint("Horizontal", 7),
    Sketcher.Constraint("Horizontal", 8),
    Sketcher.Constraint("Vertical", 9),
    Sketcher.Constraint("Horizontal", 10),
    Sketcher.Constraint("Vertical", 11),
    Sketcher.Constraint("Vertical", 12),
    Sketcher.Constraint("Horizontal", 13),
    Sketcher.Constraint("Vertical", 14),
    Sketcher.Constraint("Horizontal", 15),
    Sketcher.Constraint("Symmetric", 9, 2, 10, 2, -1, 1),
    Sketcher.Constraint("Vertical", 1, 2, 8, 2),
    Sketcher.Constraint("Vertical", 3, 2, 10, 2),
    Sketcher.Constraint("Vertical", 7, 2, 12, 2),
    Sketcher.Constraint("Vertical", 6, 2, 13, 2),
    Sketcher.Constraint("Equal", 3, 9),
    Sketcher.Constraint("Equal", 6, 12),
    Sketcher.Constraint("DistanceX", 0, 2, 0, 1, Q("20 mm")),
    Sketcher.Constraint("DistanceX", 5, 1, 5, 2, Q("15 mm")),
    Sketcher.Constraint("DistanceY", 1, 2, 1, 1, Q("40 mm")),
    Sketcher.Constraint("DistanceY", 4, 1, 4, 2, Q("35 mm")),
    Sketcher.Constraint("DistanceY", -1, 1, 0, 2, Q("1600 mm")),
    Sketcher.Constraint("DistanceX", 4, 2, -1, 1, Q("7.5 mm")),
    Sketcher.Constraint("DistanceY", -1, 1, 4, 2, Q("1597.5 mm")),
    Sketcher.Constraint("DistanceY", -1, 1, 12, 2, Q("37.5 mm")),
])
pad6 = doc.addObject("PartDesign::Pad", "Pad005")
body.addObject(pad6)
pad6.Profile = sketch6
pad6.Length = 200

# Sketch on YZ plane
sketch7 = doc.addObject("Sketcher::SketchObject", "Sketch006")
body.addObject(sketch7)
sketch7.AttachmentSupport = (doc.YZ_Plane, [""])
sketch7.MapMode = "FlatFace"
sketch7.AttachmentOffset = App.Placement(App.Vector(0, 0, -20), App.Rotation())
sketch7.addGeometry([
    Part.LineSegment(App.Vector(10, 0, 0), App.Vector(-10, 0, 0)),  # 0
    Part.LineSegment(App.Vector(-10, 0, 0), App.Vector(-10, 40, 0)),  # 1
    Part.LineSegment(App.Vector(-10, 40, 0), App.Vector(10, 40, 0)),  # 2
    Part.LineSegment(App.Vector(10, 40, 0), App.Vector(10, 0, 0)),  # 3
    Part.LineSegment(App.Vector(-7.5, 37.5, 0), App.Vector(-7.5, 2.5, 0)),  # 4
    Part.LineSegment(App.Vector(-7.5, 2.5, 0), App.Vector(7.5, 2.5, 0)),  # 5
    Part.LineSegment(App.Vector(7.5, 2.5, 0), App.Vector(7.5, 37.5, 0)),  # 6
    Part.LineSegment(App.Vector(7.5, 37.5, 0), App.Vector(-7.5, 37.5, 0)),  # 7
    Part.LineSegment(App.Vector(10, 1560, 0), App.Vector(-10, 1560, 0)),  # 8
    Part.LineSegment(App.Vector(-10, 1560, 0), App.Vector(-10, 1600, 0)),  # 9
    Part.LineSegment(App.Vector(-10, 1600, 0), App.Vector(10, 1600, 0)),  # 10
    Part.LineSegment(App.Vector(10, 1600, 0), App.Vector(10, 1560, 0)),  # 11
    Part.LineSegment(App.Vector(-7.5, 1597.5, 0), App.Vector(-7.5, 1562.5, 0)),  # 12
    Part.LineSegment(App.Vector(-7.5, 1562.5, 0), App.Vector(7.5, 1562.5, 0)),  # 13
    Part.LineSegment(App.Vector(7.5, 1562.5, 0), App.Vector(7.5, 1597.5, 0)),  # 14
    Part.LineSegment(App.Vector(7.5, 1597.5, 0), App.Vector(-7.5, 1597.5, 0)),  # 15
], False)
sketch7.addConstraint([
    Sketcher.Constraint("Coincident", 0, 2, 1, 1),
    Sketcher.Constraint("Coincident", 1, 2, 2, 1),
    Sketcher.Constraint("Coincident", 2, 2, 3, 1),
    Sketcher.Constraint("Coincident", 3, 2, 0, 1),
    Sketcher.Constraint("Coincident", 4, 2, 5, 1),
    Sketcher.Constraint("Coincident", 5, 2, 6, 1),
    Sketcher.Constraint("Coincident", 6, 2, 7, 1),
    Sketcher.Constraint("Coincident", 7, 2, 4, 1),
    Sketcher.Constraint("Coincident", 8, 2, 9, 1),
    Sketcher.Constraint("Coincident", 9, 2, 10, 1),
    Sketcher.Constraint("Coincident", 10, 2, 11, 1),
    Sketcher.Constraint("Coincident", 11, 2, 8, 1),
    Sketcher.Constraint("Coincident", 12, 2, 13, 1),
    Sketcher.Constraint("Coincident", 13, 2, 14, 1),
    Sketcher.Constraint("Coincident", 14, 2, 15, 1),
    Sketcher.Constraint("Coincident", 15, 2, 12, 1),
    Sketcher.Constraint("Horizontal", 0),
    Sketcher.Constraint("Vertical", 1),
    Sketcher.Constraint("Horizontal", 2),
    Sketcher.Constraint("Vertical", 3),
    Sketcher.Constraint("Vertical", 4),
    Sketcher.Constraint("Horizontal", 5),
    Sketcher.Constraint("Vertical", 6),
    Sketcher.Constraint("Horizontal", 7),
    Sketcher.Constraint("Horizontal", 8),
    Sketcher.Constraint("Vertical", 9),
    Sketcher.Constraint("Horizontal", 10),
    Sketcher.Constraint("Vertical", 11),
    Sketcher.Constraint("Vertical", 12),
    Sketcher.Constraint("Horizontal", 13),
    Sketcher.Constraint("Vertical", 14),
    Sketcher.Constraint("Horizontal", 15),
    Sketcher.Constraint("Symmetric", 0, 2, 3, 2, -1, 1),
    Sketcher.Constraint("Vertical", 1, 2, 8, 2),
    Sketcher.Constraint("Vertical", 3, 2, 10, 2),
    Sketcher.Constraint("Vertical", 7, 2, 12, 2),
    Sketcher.Constraint("Vertical", 6, 2, 13, 2),
    Sketcher.Constraint("Equal", 3, 9),
    Sketcher.Constraint("Equal", 6, 12),
    Sketcher.Constraint("DistanceX", 0, 2, 0, 1, Q("20 mm")),
    Sketcher.Constraint("DistanceX", 5, 1, 5, 2, Q("15 mm")),
    Sketcher.Constraint("DistanceY", 1, 1, 1, 2, Q("40 mm")),
    Sketcher.Constraint("DistanceY", 4, 2, 4, 1, Q("35 mm")),
    Sketcher.Constraint("DistanceY", -1, 1, 8, 2, Q("1560 mm")),
    Sketcher.Constraint("DistanceX", 4, 2, -1, 1, Q("7.5 mm")),
    Sketcher.Constraint("DistanceY", -1, 1, 4, 2, Q("2.5 mm")),
    Sketcher.Constraint("DistanceY", -1, 1, 12, 2, Q("1562.5 mm")),
])
pad7 = doc.addObject("PartDesign::Pad", "Pad006")
body.addObject(pad7)
pad7.Profile = sketch7
pad7.Length = 200
pad7.Reversed = True

# Sketch on XY plane
sketch8 = doc.addObject("Sketcher::SketchObject", "Sketch007")
body.addObject(sketch8)
sketch8.AttachmentSupport = (doc.XY_Plane, [""])
sketch8.MapMode = "FlatFace"
sketch8.addGeometry([
    Part.LineSegment(App.Vector(-220, 10, 0), App.Vector(-220, -10, 0)),  # 0
    Part.LineSegment(App.Vector(-220, -10, 0), App.Vector(-260, -10, 0)),  # 1
    Part.LineSegment(App.Vector(-260, -10, 0), App.Vector(-260, 10, 0)),  # 2
    Part.LineSegment(App.Vector(-260, 10, 0), App.Vector(-220, 10, 0)),  # 3
    Part.LineSegment(App.Vector(-257.5, -7.5, 0), App.Vector(-222.5, -7.5, 0)),  # 4
    Part.LineSegment(App.Vector(-222.5, -7.5, 0), App.Vector(-222.5, 7.5, 0)),  # 5
    Part.LineSegment(App.Vector(-222.5, 7.5, 0), App.Vector(-257.5, 7.5, 0)),  # 6
    Part.LineSegment(App.Vector(-257.5, 7.5, 0), App.Vector(-257.5, -7.5, 0)),  # 7
    Part.LineSegment(App.Vector(1300, 10, 0), App.Vector(1300, -10, 0)),  # 8
    Part.LineSegment(App.Vector(1300, -10, 0), App.Vector(1260, -10, 0)),  # 9
    Part.LineSegment(App.Vector(1260, -10, 0), App.Vector(1260, 10, 0)),  # 10
    Part.LineSegment(App.Vector(1260, 10, 0), App.Vector(1300, 10, 0)),  # 11
    Part.LineSegment(App.Vector(1262.5, -7.5, 0), App.Vector(1297.5, -7.5, 0)),  # 12
    Part.LineSegment(App.Vector(1297.5, -7.5, 0), App.Vector(1297.5, 7.5, 0)),  # 13
    Part.LineSegment(App.Vector(1297.5, 7.5, 0), App.Vector(1262.5, 7.5, 0)),  # 14
    Part.LineSegment(App.Vector(1262.5, 7.5, 0), App.Vector(1262.5, -7.5, 0)),  # 15
], False)
sketch8.addConstraint([
    Sketcher.Constraint("Coincident", 0, 2, 1, 1),
    Sketcher.Constraint("Coincident", 1, 2, 2, 1),
    Sketcher.Constraint("Coincident", 2, 2, 3, 1),
    Sketcher.Constraint("Coincident", 3, 2, 0, 1),
    Sketcher.Constraint("Coincident", 4, 2, 5, 1),
    Sketcher.Constraint("Coincident", 5, 2, 6, 1),
    Sketcher.Constraint("Coincident", 6, 2, 7, 1),
    Sketcher.Constraint("Coincident", 7, 2, 4, 1),
    Sketcher.Constraint("Coincident", 8, 2, 9, 1),
    Sketcher.Constraint("Coincident", 9, 2, 10, 1),
    Sketcher.Constraint("Coincident", 10, 2, 11, 1),
    Sketcher.Constraint("Coincident", 11, 2, 8, 1),
    Sketcher.Constraint("Coincident", 12, 2, 13, 1),
    Sketcher.Constraint("Coincident", 13, 2, 14, 1),
    Sketcher.Constraint("Coincident", 14, 2, 15, 1),
    Sketcher.Constraint("Coincident", 15, 2, 12, 1),
    Sketcher.Constraint("Vertical", 0),
    Sketcher.Constraint("Horizontal", 1),
    Sketcher.Constraint("Vertical", 2),
    Sketcher.Constraint("Horizontal", 3),
    Sketcher.Constraint("Horizontal", 4),
    Sketcher.Constraint("Vertical", 5),
    Sketcher.Constraint("Horizontal", 6),
    Sketcher.Constraint("Vertical", 7),
    Sketcher.Constraint("Vertical", 8),
    Sketcher.Constraint("Horizontal", 9),
    Sketcher.Constraint("Vertical", 10),
    Sketcher.Constraint("Horizontal", 11),
    Sketcher.Constraint("Horizontal", 12),
    Sketcher.Constraint("Vertical", 13),
    Sketcher.Constraint("Horizontal", 14),
    Sketcher.Constraint("Vertical", 15),
    Sketcher.Constraint("Horizontal", 1, 2, 8, 2),
    Sketcher.Constraint("Horizontal", 3, 2, 10, 2),
    Sketcher.Constraint("Horizontal", 7, 2, 12, 2),
    Sketcher.Constraint("Horizontal", 6, 2, 13, 2),
    Sketcher.Constraint("Equal", 3, 9),
    Sketcher.Constraint("Equal", 6, 12),
    Sketcher.Constraint("DistanceX", 1, 2, 1, 1, Q("40 mm")),
    Sketcher.Constraint("DistanceX", 4, 1, 4, 2, Q("35 mm")),
    Sketcher.Constraint("DistanceY", 0, 2, 0, 1, Q("20 mm")),
    Sketcher.Constraint("DistanceY", 5, 1, 5, 2, Q("15 mm")),
    Sketcher.Constraint("DistanceX", 0, 2, -1, 1, Q("220 mm")),
    Sketcher.Constraint("DistanceY", 0, 2, -1, 1, Q("10 mm")),
    Sketcher.Constraint("DistanceX", -1, 1, 8, 2, Q("1300 mm")),
    Sketcher.Constraint("DistanceX", 4, 2, -1, 1, Q("222.5 mm")),
    Sketcher.Constraint("DistanceY", 4, 2, -1, 1, Q("7.5 mm")),
    Sketcher.Constraint("DistanceX", -1, 1, 12, 2, Q("1297.5 mm")),
])
pad8 = doc.addObject("PartDesign::Pad", "Pad007")
body.addObject(pad8)
pad8.Profile = sketch8
pad8.Length = 1600

# Sketch on XZ plane
sketch9 = doc.addObject("Sketcher::SketchObject", "Sketch008")
body.addObject(sketch9)
sketch9.AttachmentSupport = (doc.XZ_Plane, [""])
sketch9.MapMode = "FlatFace"
sketch9.AttachmentOffset = App.Placement(App.Vector(0, 0, 10), App.Rotation())
sketch9.addGeometry([
    Part.LineSegment(App.Vector(1280, 40, 0), App.Vector(1280, 0, 0)),  # 0
    Part.LineSegment(App.Vector(1280, 0, 0), App.Vector(1300, 0, 0)),  # 1
    Part.LineSegment(App.Vector(1300, 0, 0), App.Vector(1300, 40, 0)),  # 2
    Part.LineSegment(App.Vector(1300, 40, 0), App.Vector(1280, 40, 0)),  # 3
    Part.LineSegment(App.Vector(1297.5, 2.5, 0), App.Vector(1282.5, 2.5, 0)),  # 4
    Part.LineSegment(App.Vector(1282.5, 2.5, 0), App.Vector(1282.5, 37.5, 0)),  # 5
    Part.LineSegment(App.Vector(1282.5, 37.5, 0), App.Vector(1297.5, 37.5, 0)),  # 6
    Part.LineSegment(App.Vector(1297.5, 37.5, 0), App.Vector(1297.5, 2.5, 0)),  # 7
    Part.LineSegment(App.Vector(-260, 40, 0), App.Vector(-260, 0, 0)),  # 8
    Part.LineSegment(App.Vector(-260, 0, 0), App.Vector(-240, 0, 0)),  # 9
    Part.LineSegment(App.Vector(-240, 0, 0), App.Vector(-240, 40, 0)),  # 10
    Part.LineSegment(App.Vector(-240, 40, 0), App.Vector(-260, 40, 0)),  # 11
    Part.LineSegment(App.Vector(-242.5, 2.5, 0), App.Vector(-257.5, 2.5, 0)),  # 12
    Part.LineSegment(App.Vector(-257.5, 2.5, 0), App.Vector(-257.5, 37.5, 0)),  # 13
    Part.LineSegment(App.Vector(-257.5, 37.5, 0), App.Vector(-242.5, 37.5, 0)),  # 14
    Part.LineSegment(App.Vector(-242.5, 37.5, 0), App.Vector(-242.5, 2.5, 0)),  # 15
    Part.LineSegment(App.Vector(1280, 1600, 0), App.Vector(1280, 1560, 0)),  # 16
    Part.LineSegment(App.Vector(1280, 1560, 0), App.Vector(1300, 1560, 0)),  # 17
    Part.LineSegment(App.Vector(1300, 1560, 0), App.Vector(1300, 1600, 0)),  # 18
    Part.LineSegment(App.Vector(1300, 1600, 0), App.Vector(1280, 1600, 0)),  # 19
    Part.LineSegment(App.Vector(1297.5, 1562.5, 0), App.Vector(1282.5, 1562.5, 0)),  # 20
    Part.LineSegment(App.Vector(1282.5, 1562.5, 0), App.Vector(1282.5, 1597.5, 0)),  # 21
    Part.LineSegment(App.Vector(1282.5, 1597.5, 0), App.Vector(1297.5, 1597.5, 0)),  # 22
    Part.LineSegment(App.Vector(1297.5, 1597.5, 0), App.Vector(1297.5, 1562.5, 0)),  # 23
    Part.LineSegment(App.Vector(-260, 1600, 0), App.Vector(-260, 1560, 0)),  # 24
    Part.LineSegment(App.Vector(-260, 1560, 0), App.Vector(-240, 1560, 0)),  # 25
    Part.LineSegment(App.Vector(-240, 1560, 0), App.Vector(-240, 1600, 0)),  # 26
    Part.LineSegment(App.Vector(-240, 1600, 0), App.Vector(-260, 1600, 0)),  # 27
    Part.LineSegment(App.Vector(-242.5, 1562.5, 0), App.Vector(-257.5, 1562.5, 0)),  # 28
    Part.LineSegment(App.Vector(-257.5, 1562.5, 0), App.Vector(-257.5, 1597.5, 0)),  # 29
    Part.LineSegment(App.Vector(-257.5, 1597.5, 0), App.Vector(-242.5, 1597.5, 0)),  # 30
    Part.LineSegment(App.Vector(-242.5, 1597.5, 0), App.Vector(-242.5, 1562.5, 0)),  # 31
], False)
sketch9.addConstraint([
    Sketcher.Constraint("Coincident", 0, 2, 1, 1),
    Sketcher.Constraint("Coincident", 1, 2, 2, 1),
    Sketcher.Constraint("Coincident", 2, 2, 3, 1),
    Sketcher.Constraint("Coincident", 3, 2, 0, 1),
    Sketcher.Constraint("Coincident", 4, 2, 5, 1),
    Sketcher.Constraint("Coincident", 5, 2, 6, 1),
    Sketcher.Constraint("Coincident", 6, 2, 7, 1),
    Sketcher.Constraint("Coincident", 7, 2, 4, 1),
    Sketcher.Constraint("Coincident", 8, 2, 9, 1),
    Sketcher.Constraint("Coincident", 9, 2, 10, 1),
    Sketcher.Constraint("Coincident", 10, 2, 11, 1),
    Sketcher.Constraint("Coincident", 11, 2, 8, 1),
    Sketcher.Constraint("Coincident", 12, 2, 13, 1),
    Sketcher.Constraint("Coincident", 13, 2, 14, 1),
    Sketcher.Constraint("Coincident", 14, 2, 15, 1),
    Sketcher.Constraint("Coincident", 15, 2, 12, 1),
    Sketcher.Constraint("Coincident", 16, 2, 17, 1),
    Sketcher.Constraint("Coincident", 17, 2, 18, 1),
    Sketcher.Constraint("Coincident", 18, 2, 19, 1),
    Sketcher.Constraint("Coincident", 19, 2, 16, 1),
    Sketcher.Constraint("Coincident", 20, 2, 21, 1),
    Sketcher.Constraint("Coincident", 21, 2, 22, 1),
    Sketcher.Constraint("Coincident", 22, 2, 23, 1),
    Sketcher.Constraint("Coincident", 23, 2, 20, 1),
    Sketcher.Constraint("Coincident", 24, 2, 25, 1),
    Sketcher.Constraint("Coincident", 25, 2, 26, 1),
    Sketcher.Constraint("Coincident", 26, 2, 27, 1),
    Sketcher.Constraint("Coincident", 27, 2, 24, 1),
    Sketcher.Constraint("Coincident", 28, 2, 29, 1),
    Sketcher.Constraint("Coincident", 29, 2, 30, 1),
    Sketcher.Constraint("Coincident", 30, 2, 31, 1),
    Sketcher.Constraint("Coincident", 31, 2, 28, 1),
    Sketcher.Constraint("Vertical", 0),
    Sketcher.Constraint("Horizontal", 1),
    Sketcher.Constraint("Vertical", 2),
    Sketcher.Constraint("Horizontal", 3),
    Sketcher.Constraint("Horizontal", 4),
    Sketcher.Constraint("Vertical", 5),
    Sketcher.Constraint("Horizontal", 6),
    Sketcher.Constraint("Vertical", 7),
    Sketcher.Constraint("Vertical", 8),
    Sketcher.Constraint("Horizontal", 9),
    Sketcher.Constraint("Vertical", 10),
    Sketcher.Constraint("Horizontal", 11),
    Sketcher.Constraint("Horizontal", 12),
    Sketcher.Constraint("Vertical", 13),
    Sketcher.Constraint("Horizontal", 14),
    Sketcher.Constraint("Vertical", 15),
    Sketcher.Constraint("Vertical", 16),
    Sketcher.Constraint("Horizontal", 17),
    Sketcher.Constraint("Vertical", 18),
    Sketcher.Constraint("Horizontal", 19),
    Sketcher.Constraint("Horizontal", 20),
    Sketcher.Constraint("Vertical", 21),
    Sketcher.Constraint("Horizontal", 22),
    Sketcher.Constraint("Vertical", 23),
    Sketcher.Constraint("Vertical", 24),
    Sketcher.Constraint("Horizontal", 25),
    Sketcher.Constraint("Vertical", 26),
    Sketcher.Constraint("Horizontal", 27),
    Sketcher.Constraint("Horizontal", 28),
    Sketcher.Constraint("Vertical", 29),
    Sketcher.Constraint("Horizontal", 30),
    Sketcher.Constraint("Vertical", 31),
    Sketcher.Constraint("PointOnObject", 0, 2, -1),
    Sketcher.Constraint("PointOnObject", 8, 2, -1),
    Sketcher.Constraint("Horizontal", 3, 2, 10, 2),
    Sketcher.Constraint("Horizontal", 7, 2, 12, 2),
    Sketcher.Constraint("Horizontal", 6, 2, 13, 2),
    Sketcher.Constraint("Horizontal", 17, 2, 24, 2),
    Sketcher.Constraint("Horizontal", 19, 2, 26, 2),
    Sketcher.Constraint("Horizontal", 23, 2, 28, 2),
    Sketcher.Constraint("Horizontal", 22, 2, 29, 2),
    Sketcher.Constraint("Vertical", 3, 2, 16, 2),
    Sketcher.Constraint("Vertical", 2, 2, 17, 2),
    Sketcher.Constraint("Vertical", 5, 2, 20, 2),
    Sketcher.Constraint("Vertical", 7, 2, 22, 2),
    Sketcher.Constraint("Vertical", 11, 2, 24, 2),
    Sketcher.Constraint("Vertical", 10, 2, 25, 2),
    Sketcher.Constraint("Vertical", 13, 2, 28, 2),
    Sketcher.Constraint("Vertical", 15, 2, 30, 2),
    Sketcher.Constraint("Equal", 3, 9),
    Sketcher.Constraint("Equal", 6, 12),
    Sketcher.Constraint("Equal", 10, 16),
    Sketcher.Constraint("Equal", 15, 21),
    Sketcher.Constraint("DistanceX", 1, 1, 1, 2, Q("20 mm")),
    Sketcher.Constraint("DistanceX", 4, 2, 4, 1, Q("15 mm")),
    Sketcher.Constraint("DistanceY", 0, 2, 0, 1, Q("40 mm")),
    Sketcher.Constraint("DistanceY", 5, 1, 5, 2, Q("35 mm")),
    Sketcher.Constraint("DistanceX", -1, 1, 0, 2, Q("1280 mm")),
    Sketcher.Constraint("DistanceX", 8, 2, -1, 1, Q("260 mm")),
    Sketcher.Constraint("DistanceY", -1, 1, 16, 2, Q("1560 mm")),
    Sketcher.Constraint("DistanceX", -1, 1, 4, 2, Q("1282.5 mm")),
    Sketcher.Constraint("DistanceY", -1, 1, 4, 2, Q("2.5 mm")),
    Sketcher.Constraint("DistanceX", 12, 2, -1, 1, Q("257.5 mm")),
    Sketcher.Constraint("DistanceY", -1, 1, 20, 2, Q("1562.5 mm")),
])
pad9 = doc.addObject("PartDesign::Pad", "Pad008")
body.addObject(pad9)
pad9.Profile = sketch9
pad9.Length = 700

# Sketch on XY plane
sketch10 = doc.addObject("Sketcher::SketchObject", "Sketch009")
body.addObject(sketch10)
sketch10.AttachmentSupport = (doc.XY_Plane, [""])
sketch10.MapMode = "FlatFace"
sketch10.AttachmentOffset = App.Placement(App.Vector(0, 0, 1560), App.Rotation())
sketch10.addGeometry([
    Part.Circle(App.Vector(1230, 0, 0), App.Vector(0, 0, 1), 5),
    Part.Circle(App.Vector(1090, 0, 0), App.Vector(0, 0, 1), 5),
    Part.Circle(App.Vector(-50, 0, 0), App.Vector(0, 0, 1), 5),
    Part.Circle(App.Vector(-190, 0, 0), App.Vector(0, 0, 1), 5),
], False)
sketch10.addConstraint([
    Sketcher.Constraint("Equal", 0, 1),
    Sketcher.Constraint("Equal", 1, 2),
    Sketcher.Constraint("Equal", 2, 3),
    Sketcher.Constraint("PointOnObject", 0, 3, -1),
    Sketcher.Constraint("PointOnObject", 1, 3, -1),
    Sketcher.Constraint("PointOnObject", 2, 3, -1),
    Sketcher.Constraint("PointOnObject", 3, 3, -1),
    Sketcher.Constraint("Diameter", 0, Q("10 mm")),
    Sketcher.Constraint("DistanceX", -1, 1, 0, 3, Q("1230 mm")),
    Sketcher.Constraint("DistanceX", -1, 1, 1, 3, Q("1090 mm")),
    Sketcher.Constraint("DistanceX", 2, 3, -1, 1, Q("50 mm")),
    Sketcher.Constraint("DistanceX", 3, 3, -1, 1, Q("190 mm")),
])
pad10 = doc.addObject("PartDesign::Pad", "Pad009")
body.addObject(pad10)
pad10.Profile = sketch10
pad10.Length = 1550
pad10.Reversed = True

doc.recompute()
